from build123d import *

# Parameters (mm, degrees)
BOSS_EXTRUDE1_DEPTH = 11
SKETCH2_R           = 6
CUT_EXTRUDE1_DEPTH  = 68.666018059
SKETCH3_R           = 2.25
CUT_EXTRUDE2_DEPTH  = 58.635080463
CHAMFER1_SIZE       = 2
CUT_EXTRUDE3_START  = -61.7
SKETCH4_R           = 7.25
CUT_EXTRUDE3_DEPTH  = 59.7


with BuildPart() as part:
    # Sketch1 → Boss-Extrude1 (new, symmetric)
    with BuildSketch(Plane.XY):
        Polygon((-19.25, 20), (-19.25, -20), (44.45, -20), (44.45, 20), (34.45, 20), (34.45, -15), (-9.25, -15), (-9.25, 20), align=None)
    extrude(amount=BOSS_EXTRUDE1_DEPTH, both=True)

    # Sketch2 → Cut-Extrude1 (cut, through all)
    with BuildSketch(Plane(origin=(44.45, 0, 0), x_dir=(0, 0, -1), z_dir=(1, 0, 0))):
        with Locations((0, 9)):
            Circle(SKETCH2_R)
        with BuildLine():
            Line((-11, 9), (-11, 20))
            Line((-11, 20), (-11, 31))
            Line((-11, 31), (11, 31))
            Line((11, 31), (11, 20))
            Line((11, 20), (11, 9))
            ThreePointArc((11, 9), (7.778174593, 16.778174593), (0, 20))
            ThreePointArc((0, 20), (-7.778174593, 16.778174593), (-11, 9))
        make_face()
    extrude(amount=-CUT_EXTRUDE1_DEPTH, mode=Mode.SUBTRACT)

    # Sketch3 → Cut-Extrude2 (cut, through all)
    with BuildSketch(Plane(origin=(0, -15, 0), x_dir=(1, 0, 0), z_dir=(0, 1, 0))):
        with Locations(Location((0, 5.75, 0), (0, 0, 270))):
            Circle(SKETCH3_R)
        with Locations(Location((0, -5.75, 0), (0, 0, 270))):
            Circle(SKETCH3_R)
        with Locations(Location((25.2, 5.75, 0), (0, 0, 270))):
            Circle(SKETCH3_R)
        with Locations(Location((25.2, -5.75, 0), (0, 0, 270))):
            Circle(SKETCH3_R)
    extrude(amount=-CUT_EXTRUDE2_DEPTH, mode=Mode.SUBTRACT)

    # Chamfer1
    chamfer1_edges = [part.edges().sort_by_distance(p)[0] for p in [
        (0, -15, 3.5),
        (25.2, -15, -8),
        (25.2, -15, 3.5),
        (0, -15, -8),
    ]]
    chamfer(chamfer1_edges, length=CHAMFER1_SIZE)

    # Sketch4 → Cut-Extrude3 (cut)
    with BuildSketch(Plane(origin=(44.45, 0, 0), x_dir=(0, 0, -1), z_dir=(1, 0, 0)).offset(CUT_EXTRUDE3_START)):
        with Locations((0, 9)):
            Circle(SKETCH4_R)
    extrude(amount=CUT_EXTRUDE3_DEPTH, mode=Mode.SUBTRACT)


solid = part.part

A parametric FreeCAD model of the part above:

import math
import FreeCAD as App
import Part
import Sketcher
from FreeCAD import Vector


def edges_at(feature, points):
    """Names of the edges that pass closest to the given points."""
    edges = feature.Shape.Edges
    near = lambda p: min(range(len(edges)), key=lambda i: edges[i].distToShape(Part.Vertex(*p))[0])
    return sorted({f"Edge{near(p) + 1}" for p in points})


def add_polygon(sketch, points):
    """Adds a closed chain of lines whose ends are joined by coincident constraints."""
    first, n = sketch.GeometryCount, len(points)
    for a, b in zip(points, points[1:] + points[:1]):
        sketch.addGeometry(Part.LineSegment(App.Vector(*a, 0), App.Vector(*b, 0)), False)
    for i in range(n):
        sketch.addConstraint(Sketcher.Constraint("Coincident", first + i, 2, first + (i + 1) % n, 1))

doc = App.newDocument("Part")
body = doc.addObject("PartDesign::Body", "Body")

# Sketch on XY plane
sketch1 = doc.addObject("Sketcher::SketchObject", "Sketch")
body.addObject(sketch1)
sketch1.AttachmentSupport = (doc.XY_Plane, [""])
sketch1.MapMode = "FlatFace"
add_polygon(sketch1, [(-19.25, 20), (-19.25, -20), (44.45, -20), (44.45, 20), (34.45, 20), (34.45, -15), (-9.25, -15), (-9.25, 20)])  # lines 0-7
sketch1.addConstraint([
    Sketcher.Constraint("Vertical", 0),
    Sketcher.Constraint("Horizontal", 1),
    Sketcher.Constraint("Vertical", 2),
    Sketcher.Constraint("Horizontal", 3),
    Sketcher.Constraint("Vertical", 4),
    Sketcher.Constraint("Horizontal", 5),
    Sketcher.Constraint("Vertical", 6),
    Sketcher.Constraint("Horizontal", 7),
    Sketcher.Constraint("Horizontal", 3, 2, 6, 2),
    Sketcher.Constraint("Equal", 3, 7),
    Sketcher.Constraint("DistanceX", 3, 2, 3, 1, 10.0),
    Sketcher.Constraint("DistanceY", 0, 2, 0, 1, 40.0),
    Sketcher.Constraint("DistanceY", 4, 2, 4, 1, 35.0),
    Sketcher.Constraint("DistanceX", 1, 1, 1, 2, 63.7),
    Sketcher.Constraint("DistanceY", 0, 2, -1, 1, 20.0),
    Sketcher.Constraint("DistanceX", 0, 2, -1, 1, 19.25),
])
pad1 = doc.addObject("PartDesign::Pad", "Pad")
body.addObject(pad1)
pad1.Profile = sketch1
pad1.Length = 22
pad1.Midplane = True

# Sketch on YZ plane
sketch2 = doc.addObject("Sketcher::SketchObject", "Sketch001")
body.addObject(sketch2)
sketch2.AttachmentSupport = (doc.YZ_Plane, [""])
sketch2.MapMode = "FlatFace"
sketch2.AttachmentOffset = App.Placement(Vector(0, 0, 44.45), App.Rotation())
sketch2.addGeometry([
    Part.Circle(Vector(9, 0, 0), Vector(0, 0, 1), 6),  # 0
    Part.LineSegment(Vector(31, 11, 0), Vector(9, 11, 0)),  # 1
    Part.ArcOfCircle(Part.Circle(Vector(9, 0, 0), Vector(0, 0, 1), 11), math.radians(0), math.radians(90)),  # 2
    Part.ArcOfCircle(Part.Circle(Vector(9, 0, 0), Vector(0, 0, 1), 11), math.radians(-90), math.radians(0)),  # 3
    Part.LineSegment(Vector(9, -11, 0), Vector(31, -11, 0)),  # 4
    Part.LineSegment(Vector(31, -11, 0), Vector(31, 11, 0)),  # 5
], False)
sketch2.addConstraint([
    Sketcher.Constraint("Tangent", 1, 2, 2, 2),
    Sketcher.Constraint("Tangent", 2, 1, 3, 2),
    Sketcher.Constraint("Tangent", 3, 1, 4, 1),
    Sketcher.Constraint("Coincident", 4, 2, 5, 1),
    Sketcher.Constraint("Coincident", 5, 2, 1, 1),
    Sketcher.Constraint("Horizontal", 1),
    Sketcher.Constraint("Horizontal", 4),
    Sketcher.Constraint("Vertical", 5),
    Sketcher.Constraint("Coincident", 2, 3, 0, 3),
    Sketcher.Constraint("Equal", 2, 3),
    Sketcher.Constraint("PointOnObject", 0, 3, -1),
    Sketcher.Constraint("PointOnObject", 2, 1, -1),
    Sketcher.Constraint("Equal", 4, 5),
    Sketcher.Constraint("Diameter", 0, 12.0),
    Sketcher.Constraint("Radius", 2, 11.0),
    Sketcher.Constraint("DistanceX", -1, 1, 0, 3, 9.0),
])
pocket1 = doc.addObject("PartDesign::Pocket", "Pocket")
body.addObject(pocket1)
pocket1.Profile = sketch2
pocket1.Type = "ThroughAll"

# Sketch on XZ plane
sketch3 = doc.addObject("Sketcher::SketchObject", "Sketch002")
body.addObject(sketch3)
sketch3.AttachmentSupport = (doc.XZ_Plane, [""])
sketch3.MapMode = "FlatFace"
sketch3.AttachmentOffset = App.Placement(Vector(0, 0, 15), App.Rotation())
sketch3.addGeometry([
    Part.Circle(Vector(0, -5.75, 0), Vector(0, 0, 1), 2.25),
    Part.Circle(Vector(0, 5.75, 0), Vector(0, 0, 1), 2.25),
    Part.Circle(Vector(25.2, -5.75, 0), Vector(0, 0, 1), 2.25),
    Part.Circle(Vector(25.2, 5.75, 0), Vector(0, 0, 1), 2.25),
], False)
sketch3.addConstraint([
    Sketcher.Constraint("Equal", 0, 1),
    Sketcher.Constraint("Equal", 1, 2),
    Sketcher.Constraint("Equal", 2, 3),
    Sketcher.Constraint("Symmetric", 0, 3, 1, 3, -1, 1),
    Sketcher.Constraint("Symmetric", 2, 3, 3, 3, -1),
    Sketcher.Constraint("PointOnObject", 0, 3, -2),
    Sketcher.Constraint("Horizontal", 0, 3, 2, 3),
    Sketcher.Constraint("Diameter", 0, 4.5),
    Sketcher.Constraint("DistanceX", -1, 1, 2, 3, 25.2),
    Sketcher.Constraint("DistanceY", 0, 3, 1, 3, 11.5),
])
pocket2 = doc.addObject("PartDesign::Pocket", "Pocket001")
body.addObject(pocket2)
pocket2.Profile = sketch3
pocket2.Type = "ThroughAll"
pocket2.Reversed = True
doc.recompute()

chamfer = doc.addObject("PartDesign::Chamfer", "Chamfer")
body.addObject(chamfer)
chamfer.Base = (pocket2, edges_at(pocket2, [
    (0, -15, 3.5),
    (25.2, -15, -8),
    (25.2, -15, 3.5),
    (0, -15, -8),
]))
chamfer.Size = 2

# Sketch on YZ plane
sketch4 = doc.addObject("Sketcher::SketchObject", "Sketch003")
body.addObject(sketch4)
sketch4.AttachmentSupport = (doc.YZ_Plane, [""])
sketch4.MapMode = "FlatFace"
sketch4.AttachmentOffset = App.Placement(Vector(0, 0, -17.25), App.Rotation())
sketch4.addGeometry(Part.Circle(Vector(9, 0, 0), Vector(0, 0, 1), 7.25), False)
sketch4.addConstraint([
    Sketcher.Constraint("PointOnObject", 0, 3, -1),
    Sketcher.Constraint("Diameter", 0, 14.5),
    Sketcher.Constraint("DistanceX", -1, 1, 0, 3, 9.0),
])
pocket3 = doc.addObject("PartDesign::Pocket", "Pocket002")
body.addObject(pocket3)
pocket3.Profile = sketch4
pocket3.Length = 59.7
pocket3.Reversed = True

doc.recompute()
